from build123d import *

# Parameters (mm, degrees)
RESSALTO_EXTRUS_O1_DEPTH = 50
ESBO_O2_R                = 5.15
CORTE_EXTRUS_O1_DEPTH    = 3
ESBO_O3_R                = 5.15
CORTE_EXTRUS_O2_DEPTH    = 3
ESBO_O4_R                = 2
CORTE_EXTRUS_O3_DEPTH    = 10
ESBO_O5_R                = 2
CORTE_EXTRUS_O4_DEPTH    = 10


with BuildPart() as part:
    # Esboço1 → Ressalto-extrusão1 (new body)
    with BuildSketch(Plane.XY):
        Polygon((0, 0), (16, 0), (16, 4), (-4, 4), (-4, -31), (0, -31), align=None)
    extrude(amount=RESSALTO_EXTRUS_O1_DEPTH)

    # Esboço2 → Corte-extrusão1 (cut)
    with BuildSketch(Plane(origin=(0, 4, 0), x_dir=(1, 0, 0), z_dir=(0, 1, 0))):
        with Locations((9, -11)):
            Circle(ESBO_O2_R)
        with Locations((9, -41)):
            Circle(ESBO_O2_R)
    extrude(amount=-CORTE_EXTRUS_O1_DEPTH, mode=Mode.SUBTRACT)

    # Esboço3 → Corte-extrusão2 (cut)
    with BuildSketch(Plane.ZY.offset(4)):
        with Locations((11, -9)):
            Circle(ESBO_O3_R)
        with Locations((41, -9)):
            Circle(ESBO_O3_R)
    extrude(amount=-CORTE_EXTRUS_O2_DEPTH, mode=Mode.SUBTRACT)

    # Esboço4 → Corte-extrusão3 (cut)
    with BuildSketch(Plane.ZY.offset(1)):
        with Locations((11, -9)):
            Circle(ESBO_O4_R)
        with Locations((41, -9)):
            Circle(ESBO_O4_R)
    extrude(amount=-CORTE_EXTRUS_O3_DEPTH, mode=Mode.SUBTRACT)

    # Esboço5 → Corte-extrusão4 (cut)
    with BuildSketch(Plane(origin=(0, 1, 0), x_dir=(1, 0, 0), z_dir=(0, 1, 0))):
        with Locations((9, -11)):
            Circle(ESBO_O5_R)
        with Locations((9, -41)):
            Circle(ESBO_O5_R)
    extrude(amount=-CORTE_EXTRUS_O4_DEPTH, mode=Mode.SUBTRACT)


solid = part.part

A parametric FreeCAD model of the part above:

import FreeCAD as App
import Part
import Sketcher


def add_polygon(sketch, points):
    """Adds a closed chain of lines whose ends are joined by coincident constraints."""
    first, n = sketch.GeometryCount, len(points)
    for a, b in zip(points, points[1:] + points[:1]):
        sketch.addGeometry(Part.LineSegment(App.Vector(*a, 0), App.Vector(*b, 0)), False)
    for i in range(n):
        sketch.addConstraint(Sketcher.Constraint("Coincident", first + i, 2, first + (i + 1) % n, 1))

doc = App.newDocument("Part")
body = doc.addObject("PartDesign::Body", "Body")

sketch1 = body.newObject("Sketcher::SketchObject", "Sketch")
sketch1.AttachmentSupport = (doc.getObject("XY_Plane"), [""])
sketch1.MapMode = "FlatFace"
add_polygon(sketch1, [(0, 0), (16, 0), (16, 4), (-4, 4), (-4, -31), (0, -31)])
sketch1.addConstraint(Sketcher.Constraint("Horizontal", 0))
sketch1.addConstraint(Sketcher.Constraint("Vertical", 1))
sketch1.addConstraint(Sketcher.Constraint("Horizontal", 2))
sketch1.addConstraint(Sketcher.Constraint("Vertical", 3))
sketch1.addConstraint(Sketcher.Constraint("Horizontal", 4))
sketch1.addConstraint(Sketcher.Constraint("Vertical", 5))
sketch1.addConstraint(Sketcher.Constraint("Coincident", 5, 2, -1, 1))
sketch1.addConstraint(Sketcher.Constraint("Equal", 4, 1))
sketch1.addConstraint(Sketcher.Constraint("DistanceX", 0, 1, 0, 2, 16.0))
sketch1.addConstraint(Sketcher.Constraint("DistanceX", 2, 2, 2, 1, 20.0))
sketch1.addConstraint(Sketcher.Constraint("DistanceY", 3, 2, 3, 1, 35.0))
pad1 = body.newObject("PartDesign::Pad", "Pad")
pad1.Profile = sketch1
pad1.Length = 50

sketch2 = body.newObject("Sketcher::SketchObject", "Sketch001")
sketch2.AttachmentSupport = (doc.getObject("XZ_Plane"), [""])
sketch2.MapMode = "FlatFace"
sketch2.AttachmentOffset = App.Placement(App.Vector(0, 0, -4), App.Rotation())
sketch2.addGeometry(Part.Circle(App.Vector(9, 11, 0), App.Vector(0, 0, 1), 5), False)
sketch2.addGeometry(Part.Circle(App.Vector(9, 41, 0), App.Vector(0, 0, 1), 5), False)
sketch2.addConstraint(Sketcher.Constraint("Equal", 0, 1))
sketch2.addConstraint(Sketcher.Constraint("Vertical", 0, 3, 1, 3))
sketch2.addConstraint(Sketcher.Constraint("Diameter", 0, 10.3))
sketch2.addConstraint(Sketcher.Constraint("DistanceX", -1, 1, 0, 3, 9.0))
sketch2.addConstraint(Sketcher.Constraint("DistanceY", -1, 1, 0, 3, 11.0))
sketch2.addConstraint(Sketcher.Constraint("DistanceY", -1, 1, 1, 3, 41.0))
pocket1 = body.newObject("PartDesign::Pocket", "Pocket")
pocket1.Profile = sketch2
pocket1.Length = 3
pocket1.Reversed = True

sketch3 = body.newObject("Sketcher::SketchObject", "Sketch002")
sketch3.AttachmentSupport = (doc.getObject("YZ_Plane"), [""])
sketch3.MapMode = "FlatFace"
sketch3.AttachmentOffset = App.Placement(App.Vector(0, 0, -4), App.Rotation())
sketch3.addGeometry(Part.Circle(App.Vector(-9, 11, 0), App.Vector(0, 0, 1), 5), False)
sketch3.addGeometry(Part.Circle(App.Vector(-9, 41, 0), App.Vector(0, 0, 1), 5), False)
sketch3.addConstraint(Sketcher.Constraint("Equal", 0, 1))
sketch3.addConstraint(Sketcher.Constraint("Vertical", 0, 3, 1, 3))
sketch3.addConstraint(Sketcher.Constraint("Diameter", 0, 10.3))
sketch3.addConstraint(Sketcher.Constraint("DistanceX", 0, 3, -1, 1, 9.0))
sketch3.addConstraint(Sketcher.Constraint("DistanceY", -1, 1, 0, 3, 11.0))
sketch3.addConstraint(Sketcher.Constraint("DistanceY", -1, 1, 1, 3, 41.0))
pocket2 = body.newObject("PartDesign::Pocket", "Pocket001")
pocket2.Profile = sketch3
pocket2.Length = 3
pocket2.Reversed = True

sketch4 = body.newObject("Sketcher::SketchObject", "Sketch003")
sketch4.AttachmentSupport = (doc.getObject("YZ_Plane"), [""])
sketch4.MapMode = "FlatFace"
sketch4.AttachmentOffset = App.Placement(App.Vector(0, 0, -1), App.Rotation())
sketch4.addGeometry(Part.Circle(App.Vector(-9, 11, 0), App.Vector(0, 0, 1), 2), False)
sketch4.addGeometry(Part.Circle(App.Vector(-9, 41, 0), App.Vector(0, 0, 1), 2), False)
sketch4.addConstraint(Sketcher.Constraint("Equal", 0, 1))
sketch4.addConstraint(Sketcher.Constraint("Vertical", 0, 3, 1, 3))
sketch4.addConstraint(Sketcher.Constraint("Diameter", 0, 4.0))
sketch4.addConstraint(Sketcher.Constraint("DistanceX", 0, 3, -1, 1, 9.0))
sketch4.addConstraint(Sketcher.Constraint("DistanceY", -1, 1, 0, 3, 11.0))
sketch4.addConstraint(Sketcher.Constraint("DistanceY", -1, 1, 1, 3, 41.0))
pocket3 = body.newObject("PartDesign::Pocket", "Pocket002")
pocket3.Profile = sketch4
pocket3.Length = 10
pocket3.Reversed = True

sketch5 = body.newObject("Sketcher::SketchObject", "Sketch004")
sketch5.AttachmentSupport = (doc.getObject("XZ_Plane"), [""])
sketch5.MapMode = "FlatFace"
sketch5.AttachmentOffset = App.Placement(App.Vector(0, 0, -1), App.Rotation())
sketch5.addGeometry(Part.Circle(App.Vector(9, 11, 0), App.Vector(0, 0, 1), 2), False)
sketch5.addGeometry(Part.Circle(App.Vector(9, 41, 0), App.Vector(0, 0, 1), 2), False)
sketch5.addConstraint(Sketcher.Constraint("Equal", 0, 1))
sketch5.addConstraint(Sketcher.Constraint("Vertical", 0, 3, 1, 3))
sketch5.addConstraint(Sketcher.Constraint("Diameter", 0, 4.0))
sketch5.addConstraint(Sketcher.Constraint("DistanceX", -1, 1, 0, 3, 9.0))
sketch5.addConstraint(Sketcher.Constraint("DistanceY", -1, 1, 0, 3, 11.0))
sketch5.addConstraint(Sketcher.Constraint("DistanceY", -1, 1, 1, 3, 41.0))
pocket4 = body.newObject("PartDesign::Pocket", "Pocket003")
pocket4.Profile = sketch5
pocket4.Length = 10
pocket4.Reversed = True

doc.recompute()
